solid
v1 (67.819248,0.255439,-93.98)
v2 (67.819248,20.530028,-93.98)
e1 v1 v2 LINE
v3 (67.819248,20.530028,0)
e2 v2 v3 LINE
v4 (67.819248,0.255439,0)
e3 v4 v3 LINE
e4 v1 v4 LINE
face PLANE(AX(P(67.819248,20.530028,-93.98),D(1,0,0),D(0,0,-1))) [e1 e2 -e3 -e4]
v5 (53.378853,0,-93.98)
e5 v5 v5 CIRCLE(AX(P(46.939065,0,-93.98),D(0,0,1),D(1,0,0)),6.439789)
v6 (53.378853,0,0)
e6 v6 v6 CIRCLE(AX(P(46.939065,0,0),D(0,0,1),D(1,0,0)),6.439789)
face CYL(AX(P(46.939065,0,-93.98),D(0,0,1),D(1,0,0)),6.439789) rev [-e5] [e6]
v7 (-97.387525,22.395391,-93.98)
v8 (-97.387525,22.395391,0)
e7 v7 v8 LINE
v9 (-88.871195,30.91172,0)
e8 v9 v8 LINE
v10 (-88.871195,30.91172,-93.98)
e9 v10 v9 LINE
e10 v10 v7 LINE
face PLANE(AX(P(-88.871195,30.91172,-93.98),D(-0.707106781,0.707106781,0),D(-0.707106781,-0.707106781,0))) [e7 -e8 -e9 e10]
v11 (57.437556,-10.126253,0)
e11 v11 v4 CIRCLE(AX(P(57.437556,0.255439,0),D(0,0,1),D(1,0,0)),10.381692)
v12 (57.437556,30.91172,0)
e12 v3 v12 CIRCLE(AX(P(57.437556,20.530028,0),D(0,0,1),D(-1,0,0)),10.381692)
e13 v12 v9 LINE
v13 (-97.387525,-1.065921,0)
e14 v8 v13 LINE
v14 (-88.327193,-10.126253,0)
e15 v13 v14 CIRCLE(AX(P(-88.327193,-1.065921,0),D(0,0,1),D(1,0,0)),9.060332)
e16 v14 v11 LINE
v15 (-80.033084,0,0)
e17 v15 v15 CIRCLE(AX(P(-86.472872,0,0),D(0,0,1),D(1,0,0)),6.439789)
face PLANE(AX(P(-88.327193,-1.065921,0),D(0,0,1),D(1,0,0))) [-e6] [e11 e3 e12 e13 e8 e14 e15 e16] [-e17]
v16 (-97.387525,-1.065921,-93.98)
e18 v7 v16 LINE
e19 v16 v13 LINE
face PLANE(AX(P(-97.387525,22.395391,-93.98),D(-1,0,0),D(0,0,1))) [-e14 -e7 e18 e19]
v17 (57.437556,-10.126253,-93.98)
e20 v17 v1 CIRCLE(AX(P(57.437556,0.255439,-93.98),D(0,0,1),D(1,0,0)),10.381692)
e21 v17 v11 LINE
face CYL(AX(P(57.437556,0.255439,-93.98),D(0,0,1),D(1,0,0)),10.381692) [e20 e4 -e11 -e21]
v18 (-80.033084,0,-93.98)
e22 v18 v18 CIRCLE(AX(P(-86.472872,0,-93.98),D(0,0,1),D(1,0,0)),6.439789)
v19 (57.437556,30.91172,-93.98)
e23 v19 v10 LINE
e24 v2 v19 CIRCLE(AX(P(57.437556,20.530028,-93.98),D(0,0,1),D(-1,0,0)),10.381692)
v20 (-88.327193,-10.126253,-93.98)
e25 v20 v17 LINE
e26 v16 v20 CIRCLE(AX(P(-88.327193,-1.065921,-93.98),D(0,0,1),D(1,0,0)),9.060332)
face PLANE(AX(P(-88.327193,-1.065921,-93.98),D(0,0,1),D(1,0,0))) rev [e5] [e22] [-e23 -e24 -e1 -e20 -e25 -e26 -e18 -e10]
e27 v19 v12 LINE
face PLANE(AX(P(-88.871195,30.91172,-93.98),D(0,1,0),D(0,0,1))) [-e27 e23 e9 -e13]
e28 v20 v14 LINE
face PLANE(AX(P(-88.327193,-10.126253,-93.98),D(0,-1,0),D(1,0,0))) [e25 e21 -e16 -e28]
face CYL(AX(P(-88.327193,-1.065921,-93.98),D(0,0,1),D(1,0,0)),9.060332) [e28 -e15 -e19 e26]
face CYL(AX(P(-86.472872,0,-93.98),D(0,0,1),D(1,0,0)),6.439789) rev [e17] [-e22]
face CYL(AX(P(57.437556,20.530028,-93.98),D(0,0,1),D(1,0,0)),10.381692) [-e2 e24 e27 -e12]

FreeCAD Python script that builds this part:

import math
import FreeCAD as App
import Part
import Sketcher
Q = App.Units.Quantity

doc = App.newDocument("Part")
body = doc.addObject("PartDesign::Body", "Body")

# Sketch on XY plane
sketch1 = body.newObject("Sketcher::SketchObject", "Sketch")
sketch1.AttachmentSupport = (doc.getObject("XY_Plane"), [""])
sketch1.MapMode = "FlatFace"
sketch1.addGeometry(Part.LineSegment(App.Vector(57, 31, 0), App.Vector(-89, 31, 0)), False)
sketch1.addGeometry(Part.LineSegment(App.Vector(-89, 31, 0), App.Vector(-97, 22, 0)), False)
sketch1.addGeometry(Part.LineSegment(App.Vector(-97, 22, 0), App.Vector(-97, -1, 0)), False)
sketch1.addGeometry(Part.ArcOfCircle(Part.Circle(App.Vector(-88, -1, 0), App.Vector(0, 0, 1), 9), math.radians(180), math.radians(270)), False)
sketch1.addGeometry(Part.LineSegment(App.Vector(-88, -10, 0), App.Vector(57, -10, 0)), False)
sketch1.addGeometry(Part.ArcOfCircle(Part.Circle(App.Vector(57, 0, 0), App.Vector(0, 0, 1), 10), math.radians(-90), math.radians(0)), False)
sketch1.addGeometry(Part.LineSegment(App.Vector(68, 0, 0), App.Vector(68, 21, 0)), False)
sketch1.addGeometry(Part.ArcOfCircle(Part.Circle(App.Vector(57, 21, 0), App.Vector(0, 0, 1), 10), math.radians(0), math.radians(90)), False)
sketch1.addGeometry(Part.Circle(App.Vector(47, 0, 0), App.Vector(0, 0, 1), 6), False)
sketch1.addGeometry(Part.Circle(App.Vector(-86, 0, 0), App.Vector(0, 0, 1), 6), False)
sketch1.addConstraint(Sketcher.Constraint("Coincident", 0, 2, 1, 1))
sketch1.addConstraint(Sketcher.Constraint("Coincident", 1, 2, 2, 1))
sketch1.addConstraint(Sketcher.Constraint("Tangent", 2, 2, 3, 1))
sketch1.addConstraint(Sketcher.Constraint("Tangent", 3, 2, 4, 1))
sketch1.addConstraint(Sketcher.Constraint("Tangent", 4, 2, 5, 1))
sketch1.addConstraint(Sketcher.Constraint("Tangent", 5, 2, 6, 1))
sketch1.addConstraint(Sketcher.Constraint("Tangent", 6, 2, 7, 1))
sketch1.addConstraint(Sketcher.Constraint("Tangent", 7, 2, 0, 1))
sketch1.addConstraint(Sketcher.Constraint("Horizontal", 0))
sketch1.addConstraint(Sketcher.Constraint("Vertical", 2))
sketch1.addConstraint(Sketcher.Constraint("Horizontal", 4))
sketch1.addConstraint(Sketcher.Constraint("Vertical", 6))
sketch1.addConstraint(Sketcher.Constraint("Equal", 5, 7))
sketch1.addConstraint(Sketcher.Constraint("Equal", 8, 9))
sketch1.addConstraint(Sketcher.Constraint("PointOnObject", 8, 3, -1))
sketch1.addConstraint(Sketcher.Constraint("PointOnObject", 9, 3, -1))
sketch1.addConstraint(Sketcher.Constraint("Angle", 1, Q("-135 deg")))
sketch1.addConstraint(Sketcher.Constraint("Radius", 3, 9.060332))
sketch1.addConstraint(Sketcher.Constraint("Radius", 5, 10.381692))
sketch1.addConstraint(Sketcher.Constraint("Diameter", 8, 12.879577))
sketch1.addConstraint(Sketcher.Constraint("DistanceX", 0, 2, 0, 1, 146.308751))
sketch1.addConstraint(Sketcher.Constraint("DistanceX", 4, 1, 4, 2, 145.764749))
sketch1.addConstraint(Sketcher.Constraint("DistanceY", 2, 2, 2, 1, 23.461312))
sketch1.addConstraint(Sketcher.Constraint("DistanceY", 3, 3, -1, 1, 1.065921))
sketch1.addConstraint(Sketcher.Constraint("DistanceX", -1, 1, 5, 2, 67.819248))
sketch1.addConstraint(Sketcher.Constraint("DistanceX", 8, 3, 5, 3, 10.498491))
sketch1.addConstraint(Sketcher.Constraint("DistanceX", 3, 3, 9, 3, 1.854321))
pad1 = body.newObject("PartDesign::Pad", "Pad")
pad1.Profile = sketch1
pad1.Length = Q("3.7 in")
pad1.Reversed = True

doc.recompute()
